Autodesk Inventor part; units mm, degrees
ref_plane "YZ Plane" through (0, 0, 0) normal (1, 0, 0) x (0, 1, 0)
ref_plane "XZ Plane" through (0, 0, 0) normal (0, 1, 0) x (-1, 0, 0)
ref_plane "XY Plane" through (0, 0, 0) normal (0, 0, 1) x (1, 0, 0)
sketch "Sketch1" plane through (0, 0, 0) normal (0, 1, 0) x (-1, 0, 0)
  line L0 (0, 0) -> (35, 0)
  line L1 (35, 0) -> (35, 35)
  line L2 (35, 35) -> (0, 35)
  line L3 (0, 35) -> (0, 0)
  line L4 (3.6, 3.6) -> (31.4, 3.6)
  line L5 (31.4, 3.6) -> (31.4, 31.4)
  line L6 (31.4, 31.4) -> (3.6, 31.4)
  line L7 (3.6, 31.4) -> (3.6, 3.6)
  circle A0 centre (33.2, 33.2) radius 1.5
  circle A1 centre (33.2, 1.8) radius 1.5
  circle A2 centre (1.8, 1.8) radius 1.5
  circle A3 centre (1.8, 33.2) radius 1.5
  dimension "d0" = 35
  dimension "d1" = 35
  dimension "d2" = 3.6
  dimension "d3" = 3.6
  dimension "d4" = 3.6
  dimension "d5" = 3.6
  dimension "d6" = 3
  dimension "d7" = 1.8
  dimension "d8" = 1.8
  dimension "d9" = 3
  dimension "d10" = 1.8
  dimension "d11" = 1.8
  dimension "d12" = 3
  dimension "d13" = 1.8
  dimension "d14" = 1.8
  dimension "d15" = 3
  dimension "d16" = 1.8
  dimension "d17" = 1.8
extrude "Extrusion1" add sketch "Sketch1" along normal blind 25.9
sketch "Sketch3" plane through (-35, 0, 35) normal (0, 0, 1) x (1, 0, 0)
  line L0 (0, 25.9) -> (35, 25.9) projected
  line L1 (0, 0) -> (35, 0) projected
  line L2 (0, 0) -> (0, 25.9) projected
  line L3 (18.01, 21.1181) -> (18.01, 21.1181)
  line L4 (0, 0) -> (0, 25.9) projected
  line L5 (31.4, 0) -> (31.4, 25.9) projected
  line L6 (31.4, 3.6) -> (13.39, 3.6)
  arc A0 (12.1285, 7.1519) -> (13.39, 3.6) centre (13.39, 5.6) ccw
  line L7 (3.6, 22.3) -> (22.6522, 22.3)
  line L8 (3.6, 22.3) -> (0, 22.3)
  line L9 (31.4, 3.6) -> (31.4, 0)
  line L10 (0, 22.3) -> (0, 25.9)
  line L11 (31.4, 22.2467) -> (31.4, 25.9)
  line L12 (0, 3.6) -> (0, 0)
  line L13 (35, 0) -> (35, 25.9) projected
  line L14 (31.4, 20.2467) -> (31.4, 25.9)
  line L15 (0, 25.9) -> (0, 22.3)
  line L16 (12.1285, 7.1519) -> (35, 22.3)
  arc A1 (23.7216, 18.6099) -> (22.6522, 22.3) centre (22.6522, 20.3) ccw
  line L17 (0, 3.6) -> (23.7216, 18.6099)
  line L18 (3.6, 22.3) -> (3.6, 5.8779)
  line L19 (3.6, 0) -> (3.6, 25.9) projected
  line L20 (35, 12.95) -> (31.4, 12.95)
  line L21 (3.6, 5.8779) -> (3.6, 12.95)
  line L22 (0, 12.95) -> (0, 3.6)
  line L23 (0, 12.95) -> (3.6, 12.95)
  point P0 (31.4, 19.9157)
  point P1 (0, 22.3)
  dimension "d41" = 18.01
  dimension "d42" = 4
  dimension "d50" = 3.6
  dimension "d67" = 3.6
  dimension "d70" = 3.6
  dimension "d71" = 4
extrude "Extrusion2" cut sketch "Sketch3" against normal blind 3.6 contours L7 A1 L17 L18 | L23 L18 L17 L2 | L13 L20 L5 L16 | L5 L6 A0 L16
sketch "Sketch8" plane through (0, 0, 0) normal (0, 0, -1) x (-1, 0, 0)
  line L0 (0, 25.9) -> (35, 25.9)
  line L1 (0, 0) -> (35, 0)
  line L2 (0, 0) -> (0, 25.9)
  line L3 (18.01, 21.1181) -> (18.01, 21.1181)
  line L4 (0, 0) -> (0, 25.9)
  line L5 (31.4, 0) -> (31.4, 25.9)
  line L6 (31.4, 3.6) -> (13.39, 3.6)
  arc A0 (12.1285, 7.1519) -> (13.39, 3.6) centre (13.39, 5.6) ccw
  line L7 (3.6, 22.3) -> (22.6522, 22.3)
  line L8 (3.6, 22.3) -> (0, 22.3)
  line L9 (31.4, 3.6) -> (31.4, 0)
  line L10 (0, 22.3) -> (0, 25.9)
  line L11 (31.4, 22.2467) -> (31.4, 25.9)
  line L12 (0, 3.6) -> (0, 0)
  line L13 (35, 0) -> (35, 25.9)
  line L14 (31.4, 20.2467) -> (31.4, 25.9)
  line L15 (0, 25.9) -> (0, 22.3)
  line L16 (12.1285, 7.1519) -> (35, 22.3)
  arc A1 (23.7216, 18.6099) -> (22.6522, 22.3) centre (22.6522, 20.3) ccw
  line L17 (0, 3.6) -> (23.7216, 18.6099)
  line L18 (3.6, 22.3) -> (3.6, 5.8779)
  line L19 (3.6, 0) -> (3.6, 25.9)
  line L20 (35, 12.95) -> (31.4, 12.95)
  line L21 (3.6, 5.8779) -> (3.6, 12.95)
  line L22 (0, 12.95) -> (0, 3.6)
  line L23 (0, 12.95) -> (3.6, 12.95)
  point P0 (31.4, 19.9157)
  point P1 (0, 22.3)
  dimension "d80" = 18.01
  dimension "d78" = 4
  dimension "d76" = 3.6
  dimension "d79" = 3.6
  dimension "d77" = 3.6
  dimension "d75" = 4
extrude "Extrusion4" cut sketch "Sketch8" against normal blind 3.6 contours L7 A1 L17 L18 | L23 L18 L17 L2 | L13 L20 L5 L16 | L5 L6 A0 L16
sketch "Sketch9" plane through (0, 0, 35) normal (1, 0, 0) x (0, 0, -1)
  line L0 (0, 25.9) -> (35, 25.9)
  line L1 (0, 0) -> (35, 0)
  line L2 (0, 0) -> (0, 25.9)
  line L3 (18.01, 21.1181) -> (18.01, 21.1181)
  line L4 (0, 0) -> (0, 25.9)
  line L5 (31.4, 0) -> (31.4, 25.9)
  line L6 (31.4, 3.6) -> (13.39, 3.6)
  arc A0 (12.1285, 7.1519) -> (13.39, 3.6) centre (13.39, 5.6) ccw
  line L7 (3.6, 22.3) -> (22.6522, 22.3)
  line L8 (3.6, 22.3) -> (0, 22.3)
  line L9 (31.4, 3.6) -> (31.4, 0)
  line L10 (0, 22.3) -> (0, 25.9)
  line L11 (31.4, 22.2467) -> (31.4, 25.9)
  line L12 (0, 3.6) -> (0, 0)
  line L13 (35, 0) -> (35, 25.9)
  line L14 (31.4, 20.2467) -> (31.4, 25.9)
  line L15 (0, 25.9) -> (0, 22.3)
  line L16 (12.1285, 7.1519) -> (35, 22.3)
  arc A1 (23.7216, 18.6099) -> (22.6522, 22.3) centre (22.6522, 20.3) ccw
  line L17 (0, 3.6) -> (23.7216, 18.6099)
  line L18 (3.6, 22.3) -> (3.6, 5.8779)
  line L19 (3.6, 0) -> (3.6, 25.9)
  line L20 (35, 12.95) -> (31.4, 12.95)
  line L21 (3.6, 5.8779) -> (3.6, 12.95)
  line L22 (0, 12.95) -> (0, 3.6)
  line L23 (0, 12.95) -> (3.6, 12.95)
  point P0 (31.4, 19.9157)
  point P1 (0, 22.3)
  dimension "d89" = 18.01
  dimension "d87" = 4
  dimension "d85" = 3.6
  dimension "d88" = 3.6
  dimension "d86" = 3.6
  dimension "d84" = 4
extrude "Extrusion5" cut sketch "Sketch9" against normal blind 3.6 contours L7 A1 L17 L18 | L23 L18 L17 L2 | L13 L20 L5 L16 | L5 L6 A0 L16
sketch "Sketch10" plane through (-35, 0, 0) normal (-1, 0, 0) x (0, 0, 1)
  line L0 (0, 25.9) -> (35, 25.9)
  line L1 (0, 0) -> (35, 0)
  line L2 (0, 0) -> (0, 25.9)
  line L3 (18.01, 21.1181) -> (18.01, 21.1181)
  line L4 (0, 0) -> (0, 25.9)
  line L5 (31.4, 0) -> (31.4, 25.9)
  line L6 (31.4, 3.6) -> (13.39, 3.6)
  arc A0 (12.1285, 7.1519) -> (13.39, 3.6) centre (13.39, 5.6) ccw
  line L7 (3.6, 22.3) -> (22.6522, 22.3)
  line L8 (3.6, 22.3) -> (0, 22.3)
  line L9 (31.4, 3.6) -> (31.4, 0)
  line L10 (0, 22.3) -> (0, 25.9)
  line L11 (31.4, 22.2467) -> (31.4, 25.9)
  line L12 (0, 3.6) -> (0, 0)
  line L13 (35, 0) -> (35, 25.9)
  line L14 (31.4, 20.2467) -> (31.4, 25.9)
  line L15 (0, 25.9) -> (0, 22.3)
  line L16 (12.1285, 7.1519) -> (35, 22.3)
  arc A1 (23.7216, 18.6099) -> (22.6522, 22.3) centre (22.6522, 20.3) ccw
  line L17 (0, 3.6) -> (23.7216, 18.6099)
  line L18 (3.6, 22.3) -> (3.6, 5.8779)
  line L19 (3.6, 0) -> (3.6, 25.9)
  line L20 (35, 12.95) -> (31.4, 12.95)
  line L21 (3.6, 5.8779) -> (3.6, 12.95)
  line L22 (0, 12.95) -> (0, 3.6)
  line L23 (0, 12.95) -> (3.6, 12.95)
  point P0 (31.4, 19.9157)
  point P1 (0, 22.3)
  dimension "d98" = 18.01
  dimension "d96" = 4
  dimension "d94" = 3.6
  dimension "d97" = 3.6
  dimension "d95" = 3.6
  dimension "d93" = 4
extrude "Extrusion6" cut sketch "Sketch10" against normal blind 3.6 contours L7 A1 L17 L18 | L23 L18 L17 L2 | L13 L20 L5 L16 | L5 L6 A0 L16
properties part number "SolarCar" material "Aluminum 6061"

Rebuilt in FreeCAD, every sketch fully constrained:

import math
import FreeCAD as App
import Part
import Sketcher

V = App.Vector
Q = App.Units.Quantity


def add_polygon(sketch, points):
    """Adds a closed chain of lines whose ends are joined by coincident constraints."""
    first, n = sketch.GeometryCount, len(points)
    for a, b in zip(points, points[1:] + points[:1]):
        sketch.addGeometry(Part.LineSegment(App.Vector(*a, 0), App.Vector(*b, 0)), False)
    for i in range(n):
        sketch.addConstraint(Sketcher.Constraint("Coincident", first + i, 2, first + (i + 1) % n, 1))

doc = App.newDocument("Part")
body = doc.addObject("PartDesign::Body", "Body")

# Sketch on XZ plane
sketch1 = body.newObject("Sketcher::SketchObject", "Sketch")
sketch1.AttachmentSupport = (doc.getObject("XZ_Plane"), [""])
sketch1.MapMode = "FlatFace"
add_polygon(sketch1, [(0, 35), (0, 0), (-35, 0), (-35, 35)])  # lines 0-3
sketch1.addGeometry(Part.Circle(V(-1.8, 1.8, 0), V(0, 0, 1), 1.5), False)  # 4
sketch1.addGeometry(Part.Circle(V(-33.2, 1.8, 0), V(0, 0, 1), 1.5), False)  # 5
sketch1.addGeometry(Part.Circle(V(-1.8, 33.2, 0), V(0, 0, 1), 1.5), False)  # 6
add_polygon(sketch1, [(-31.4, 3.6), (-3.6, 3.6), (-3.6, 31.4), (-31.4, 31.4)])  # lines 7-10
sketch1.addGeometry(Part.Circle(V(-33.2, 33.2, 0), V(0, 0, 1), 1.5), False)  # 11
sketch1.addConstraint([
    Sketcher.Constraint("Vertical", 0),
    Sketcher.Constraint("Horizontal", 1),
    Sketcher.Constraint("Vertical", 2),
    Sketcher.Constraint("Horizontal", 3),
    Sketcher.Constraint("Horizontal", 7),
    Sketcher.Constraint("Vertical", 8),
    Sketcher.Constraint("Horizontal", 9),
    Sketcher.Constraint("Vertical", 10),
    Sketcher.Constraint("Coincident", 0, 2, -1, 1),
    Sketcher.Constraint("Equal", 4, 5),
    Sketcher.Constraint("Equal", 5, 6),
    Sketcher.Constraint("Equal", 6, 11),
    Sketcher.Constraint("Horizontal", 4, 3, 5, 3),
    Sketcher.Constraint("Horizontal", 6, 3, 11, 3),
    Sketcher.Constraint("Vertical", 4, 3, 6, 3),
    Sketcher.Constraint("Vertical", 5, 3, 11, 3),
    Sketcher.Constraint("Equal", 3, 0),
    Sketcher.Constraint("Equal", 9, 8),
    Sketcher.Constraint("Diameter", 4, Q("3 mm")),
    Sketcher.Constraint("DistanceX", 1, 2, 1, 1, Q("35 mm")),
    Sketcher.Constraint("DistanceX", 4, 3, -1, 1, Q("1.8 mm")),
    Sketcher.Constraint("DistanceY", -1, 1, 4, 3, Q("1.8 mm")),
    Sketcher.Constraint("DistanceX", 7, 2, -1, 1, Q("3.6 mm")),
    Sketcher.Constraint("DistanceY", -1, 1, 7, 2, Q("3.6 mm")),
    Sketcher.Constraint("DistanceX", 1, 2, 5, 3, Q("1.8 mm")),
    Sketcher.Constraint("DistanceY", 11, 3, 2, 2, Q("1.8 mm")),
    Sketcher.Constraint("DistanceY", 8, 2, 6, 3, Q("1.8 mm")),
])
pad1 = body.newObject("PartDesign::Pad", "Pad")
pad1.Profile = sketch1
pad1.Length = 25.9
pad1.Reversed = True

# Sketch on XY plane
sketch2 = body.newObject("Sketcher::SketchObject", "Sketch001")
sketch2.AttachmentSupport = (doc.getObject("XY_Plane"), [""])
sketch2.MapMode = "FlatFace"
sketch2.AttachmentOffset = App.Placement(V(0, 0, 35), App.Rotation())
sketch2.addGeometry([
    Part.LineSegment(V(-12.3478, 22.3, 0), V(-31.4, 22.3, 0)),  # 0
    Part.LineSegment(V(-31.4, 22.3, 0), V(-31.4, 12.95, 0)),  # 1
    Part.LineSegment(V(-31.4, 12.95, 0), V(-35, 12.95, 0)),  # 2
    Part.LineSegment(V(-35, 12.95, 0), V(-35, 3.6, 0)),  # 3
    Part.LineSegment(V(-35, 3.6, 0), V(-11.2784, 18.6099, 0)),  # 4
    Part.ArcOfCircle(Part.Circle(V(-12.3478, 20.3, 0), V(0, 0, 1), 2.000014), math.radians(-57.676678), math.radians(90)),  # 5
    Part.LineSegment(V(0, 12.95, 0), V(0, 22.3, 0)),  # 6
    Part.LineSegment(V(0, 22.3, 0), V(-22.8715, 7.1519, 0)),  # 7
    Part.ArcOfCircle(Part.Circle(V(-21.61, 5.6, 0), V(0, 0, 1), 1.999944), math.radians(129.106783), math.radians(270)),  # 8
    Part.LineSegment(V(-21.61, 3.6, 0), V(-3.6, 3.6, 0)),  # 9
    Part.LineSegment(V(-3.6, 3.6, 0), V(-3.6, 12.95, 0)),  # 10
    Part.LineSegment(V(-3.6, 12.95, 0), V(0, 12.95, 0)),  # 11
], False)
sketch2.addConstraint([
    Sketcher.Constraint("Coincident", 0, 2, 1, 1),
    Sketcher.Constraint("Coincident", 1, 2, 2, 1),
    Sketcher.Constraint("Coincident", 2, 2, 3, 1),
    Sketcher.Constraint("Coincident", 3, 2, 4, 1),
    Sketcher.Constraint("Coincident", 4, 2, 5, 1),
    Sketcher.Constraint("Coincident", 5, 2, 0, 1),
    Sketcher.Constraint("Coincident", 6, 2, 7, 1),
    Sketcher.Constraint("Coincident", 7, 2, 8, 1),
    Sketcher.Constraint("Coincident", 8, 2, 9, 1),
    Sketcher.Constraint("Coincident", 9, 2, 10, 1),
    Sketcher.Constraint("Coincident", 10, 2, 11, 1),
    Sketcher.Constraint("Coincident", 11, 2, 6, 1),
    Sketcher.Constraint("Horizontal", 0),
    Sketcher.Constraint("Vertical", 1),
    Sketcher.Constraint("Horizontal", 2),
    Sketcher.Constraint("Vertical", 3),
    Sketcher.Constraint("Vertical", 6),
    Sketcher.Constraint("Horizontal", 9),
    Sketcher.Constraint("Vertical", 10),
    Sketcher.Constraint("Horizontal", 11),
    Sketcher.Constraint("PointOnObject", 6, 2, -2),
    Sketcher.Constraint("Radius", 5, Q("2 mm")),
    Sketcher.Constraint("Radius", 8, Q("2 mm")),
    Sketcher.Constraint("DistanceX", 2, 2, 2, 1, Q("3.6 mm")),
    Sketcher.Constraint("DistanceX", 11, 1, 11, 2, Q("3.6 mm")),
    Sketcher.Constraint("DistanceX", 9, 1, 9, 2, Q("18.01 mm")),
    Sketcher.Constraint("DistanceY", -1, 1, 3, 2, Q("3.6 mm")),
    Sketcher.Constraint("DistanceY", -1, 1, 8, 2, Q("3.6 mm")),
    Sketcher.Constraint("DistanceX", 8, 3, 9, 2, Q("18.01 mm")),
    Sketcher.Constraint("DistanceX", 2, 2, -1, 1, Q("35 mm")),
    Sketcher.Constraint("DistanceY", 5, 3, 6, 2, Q("2 mm")),
    Sketcher.Constraint("DistanceY", 1, 2, 1, 1, Q("9.35 mm")),
    Sketcher.Constraint("DistanceY", 3, 2, 3, 1, Q("9.35 mm")),
    Sketcher.Constraint("DistanceY", 6, 1, 6, 2, Q("9.35 mm")),
    Sketcher.Constraint("DistanceY", -1, 1, 4, 2, Q("18.61 mm")),
    Sketcher.Constraint("Distance", 7, Q("27.433 mm")),
    Sketcher.Constraint("DistanceX", 0, 2, 0, 1, Q("19.0522 mm")),
    Sketcher.Constraint("DistanceX", 7, 2, 4, 2, Q("11.593 mm")),
])
pocket1 = body.newObject("PartDesign::Pocket", "Pocket")
pocket1.Profile = sketch2
pocket1.Length = 3.6

# Sketch on XY plane
sketch3 = body.newObject("Sketcher::SketchObject", "Sketch002")
sketch3.AttachmentSupport = (doc.getObject("XY_Plane"), [""])
sketch3.MapMode = "FlatFace"
sketch3.addGeometry([
    Part.LineSegment(V(-22.6522, 22.3, 0), V(-3.6, 22.3, 0)),  # 0
    Part.LineSegment(V(-3.6, 22.3, 0), V(-3.6, 12.95, 0)),  # 1
    Part.LineSegment(V(-3.6, 12.95, 0), V(0, 12.95, 0)),  # 2
    Part.LineSegment(V(0, 12.95, 0), V(0, 3.6, 0)),  # 3
    Part.LineSegment(V(0, 3.6, 0), V(-23.7216, 18.6099, 0)),  # 4
    Part.ArcOfCircle(Part.Circle(V(-22.6522, 20.3, 0), V(0, 0, 1), 2.000014), math.radians(90), math.radians(237.676678)),  # 5
    Part.LineSegment(V(-35, 12.95, 0), V(-35, 22.3, 0)),  # 6
    Part.LineSegment(V(-35, 22.3, 0), V(-12.1285, 7.1519, 0)),  # 7
    Part.ArcOfCircle(Part.Circle(V(-13.39, 5.6, 0), V(0, 0, 1), 1.999944), math.radians(-90), math.radians(50.893217)),  # 8
    Part.LineSegment(V(-13.39, 3.6, 0), V(-31.4, 3.6, 0)),  # 9
    Part.LineSegment(V(-31.4, 3.6, 0), V(-31.4, 12.95, 0)),  # 10
    Part.LineSegment(V(-31.4, 12.95, 0), V(-35, 12.95, 0)),  # 11
], False)
sketch3.addConstraint([
    Sketcher.Constraint("Coincident", 0, 2, 1, 1),
    Sketcher.Constraint("Coincident", 1, 2, 2, 1),
    Sketcher.Constraint("Coincident", 2, 2, 3, 1),
    Sketcher.Constraint("Coincident", 3, 2, 4, 1),
    Sketcher.Constraint("Coincident", 4, 2, 5, 2),
    Sketcher.Constraint("Coincident", 5, 1, 0, 1),
    Sketcher.Constraint("Coincident", 6, 2, 7, 1),
    Sketcher.Constraint("Coincident", 7, 2, 8, 2),
    Sketcher.Constraint("Coincident", 8, 1, 9, 1),
    Sketcher.Constraint("Coincident", 9, 2, 10, 1),
    Sketcher.Constraint("Coincident", 10, 2, 11, 1),
    Sketcher.Constraint("Coincident", 11, 2, 6, 1),
    Sketcher.Constraint("Horizontal", 0),
    Sketcher.Constraint("Vertical", 1),
    Sketcher.Constraint("Horizontal", 2),
    Sketcher.Constraint("Vertical", 3),
    Sketcher.Constraint("Vertical", 6),
    Sketcher.Constraint("Horizontal", 9),
    Sketcher.Constraint("Vertical", 10),
    Sketcher.Constraint("Horizontal", 11),
    Sketcher.Constraint("PointOnObject", 2, 2, -2),
    Sketcher.Constraint("Radius", 5, Q("2 mm")),
    Sketcher.Constraint("Radius", 8, Q("2 mm")),
    Sketcher.Constraint("DistanceX", 2, 1, 2, 2, Q("3.6 mm")),
    Sketcher.Constraint("DistanceX", 11, 2, 11, 1, Q("3.6 mm")),
    Sketcher.Constraint("DistanceX", 9, 2, 9, 1, Q("18.01 mm")),
    Sketcher.Constraint("DistanceY", -1, 1, 3, 2, Q("3.6 mm")),
    Sketcher.Constraint("DistanceY", -1, 1, 8, 1, Q("3.6 mm")),
    Sketcher.Constraint("DistanceX", 9, 2, 8, 3, Q("18.01 mm")),
    Sketcher.Constraint("DistanceX", 6, 2, -1, 1, Q("35 mm")),
    Sketcher.Constraint("DistanceY", 5, 3, 6, 2, Q("2 mm")),
    Sketcher.Constraint("DistanceY", 1, 2, 1, 1, Q("9.35 mm")),
    Sketcher.Constraint("DistanceY", 3, 2, 3, 1, Q("9.35 mm")),
    Sketcher.Constraint("DistanceY", 6, 1, 6, 2, Q("9.35 mm")),
    Sketcher.Constraint("DistanceY", -1, 1, 4, 2, Q("18.61 mm")),
    Sketcher.Constraint("Distance", 7, Q("27.433 mm")),
    Sketcher.Constraint("DistanceX", 0, 1, 0, 2, Q("19.0522 mm")),
    Sketcher.Constraint("DistanceX", 4, 2, 7, 2, Q("11.593 mm")),
])
pocket2 = body.newObject("PartDesign::Pocket", "Pocket001")
pocket2.Profile = sketch3
pocket2.Length = 3.6
pocket2.Reversed = True

# Sketch on YZ plane
sketch4 = body.newObject("Sketcher::SketchObject", "Sketch003")
sketch4.AttachmentSupport = (doc.getObject("YZ_Plane"), [""])
sketch4.MapMode = "FlatFace"
sketch4.addGeometry([
    Part.LineSegment(V(22.3, 12.3478, 0), V(22.3, 31.4, 0)),  # 0
    Part.LineSegment(V(22.3, 31.4, 0), V(12.95, 31.4, 0)),  # 1
    Part.LineSegment(V(12.95, 31.4, 0), V(12.95, 35, 0)),  # 2
    Part.LineSegment(V(12.95, 35, 0), V(3.6, 35, 0)),  # 3
    Part.LineSegment(V(3.6, 35, 0), V(18.6099, 11.2784, 0)),  # 4
    Part.ArcOfCircle(Part.Circle(V(20.3, 12.3478, 0), V(0, 0, 1), 2.000014), math.radians(-147.676678), math.radians(0)),  # 5
    Part.LineSegment(V(12.95, 0, 0), V(22.3, 0, 0)),  # 6
    Part.LineSegment(V(22.3, 0, 0), V(7.1519, 22.8715, 0)),  # 7
    Part.ArcOfCircle(Part.Circle(V(5.6, 21.61, 0), V(0, 0, 1), 1.999944), math.radians(39.106783), math.radians(180)),  # 8
    Part.LineSegment(V(3.6, 21.61, 0), V(3.6, 3.6, 0)),  # 9
    Part.LineSegment(V(3.6, 3.6, 0), V(12.95, 3.6, 0)),  # 10
    Part.LineSegment(V(12.95, 3.6, 0), V(12.95, 0, 0)),  # 11
], False)
sketch4.addConstraint([
    Sketcher.Constraint("Coincident", 0, 2, 1, 1),
    Sketcher.Constraint("Coincident", 1, 2, 2, 1),
    Sketcher.Constraint("Coincident", 2, 2, 3, 1),
    Sketcher.Constraint("Coincident", 3, 2, 4, 1),
    Sketcher.Constraint("Coincident", 4, 2, 5, 1),
    Sketcher.Constraint("Coincident", 5, 2, 0, 1),
    Sketcher.Constraint("Coincident", 6, 2, 7, 1),
    Sketcher.Constraint("Coincident", 7, 2, 8, 1),
    Sketcher.Constraint("Coincident", 8, 2, 9, 1),
    Sketcher.Constraint("Coincident", 9, 2, 10, 1),
    Sketcher.Constraint("Coincident", 10, 2, 11, 1),
    Sketcher.Constraint("Coincident", 11, 2, 6, 1),
    Sketcher.Constraint("Vertical", 0),
    Sketcher.Constraint("Horizontal", 1),
    Sketcher.Constraint("Vertical", 2),
    Sketcher.Constraint("Horizontal", 3),
    Sketcher.Constraint("Horizontal", 6),
    Sketcher.Constraint("Vertical", 9),
    Sketcher.Constraint("Horizontal", 10),
    Sketcher.Constraint("Vertical", 11),
    Sketcher.Constraint("PointOnObject", 6, 2, -1),
    Sketcher.Constraint("Radius", 5, Q("2 mm")),
    Sketcher.Constraint("Radius", 8, Q("2 mm")),
    Sketcher.Constraint("DistanceY", 2, 1, 2, 2, Q("3.6 mm")),
    Sketcher.Constraint("DistanceY", 11, 2, 11, 1, Q("3.6 mm")),
    Sketcher.Constraint("DistanceY", 9, 2, 9, 1, Q("18.01 mm")),
    Sketcher.Constraint("DistanceX", -1, 1, 3, 2, Q("3.6 mm")),
    Sketcher.Constraint("DistanceX", -1, 1, 8, 2, Q("3.6 mm")),
    Sketcher.Constraint("DistanceY", 9, 2, 8, 3, Q("18.01 mm")),
    Sketcher.Constraint("DistanceY", -1, 1, 2, 2, Q("35 mm")),
    Sketcher.Constraint("DistanceX", 5, 3, 6, 2, Q("2 mm")),
    Sketcher.Constraint("DistanceX", 1, 2, 1, 1, Q("9.35 mm")),
    Sketcher.Constraint("DistanceX", 3, 2, 3, 1, Q("9.35 mm")),
    Sketcher.Constraint("DistanceX", 6, 1, 6, 2, Q("9.35 mm")),
    Sketcher.Constraint("DistanceX", -1, 1, 4, 2, Q("18.61 mm")),
    Sketcher.Constraint("Distance", 7, Q("27.433 mm")),
    Sketcher.Constraint("DistanceY", 0, 1, 0, 2, Q("19.0522 mm")),
    Sketcher.Constraint("DistanceY", 4, 2, 7, 2, Q("11.593 mm")),
])
pocket3 = body.newObject("PartDesign::Pocket", "Pocket002")
pocket3.Profile = sketch4
pocket3.Length = 3.6

# Sketch on YZ plane
sketch5 = body.newObject("Sketcher::SketchObject", "Sketch004")
sketch5.AttachmentSupport = (doc.getObject("YZ_Plane"), [""])
sketch5.MapMode = "FlatFace"
sketch5.AttachmentOffset = App.Placement(V(0, 0, -35), App.Rotation())
sketch5.addGeometry([
    Part.LineSegment(V(22.3, 22.6522, 0), V(22.3, 3.6, 0)),  # 0
    Part.LineSegment(V(22.3, 3.6, 0), V(12.95, 3.6, 0)),  # 1
    Part.LineSegment(V(12.95, 3.6, 0), V(12.95, 0, 0)),  # 2
    Part.LineSegment(V(12.95, 0, 0), V(3.6, 0, 0)),  # 3
    Part.LineSegment(V(3.6, 0, 0), V(18.6099, 23.7216, 0)),  # 4
    Part.ArcOfCircle(Part.Circle(V(20.3, 22.6522, 0), V(0, 0, 1), 2.000014), math.radians(0), math.radians(147.676678)),  # 5
    Part.LineSegment(V(12.95, 35, 0), V(22.3, 35, 0)),  # 6
    Part.LineSegment(V(22.3, 35, 0), V(7.1519, 12.1285, 0)),  # 7
    Part.ArcOfCircle(Part.Circle(V(5.6, 13.39, 0), V(0, 0, 1), 1.999944), math.radians(180), math.radians(320.893217)),  # 8
    Part.LineSegment(V(3.6, 13.39, 0), V(3.6, 31.4, 0)),  # 9
    Part.LineSegment(V(3.6, 31.4, 0), V(12.95, 31.4, 0)),  # 10
    Part.LineSegment(V(12.95, 31.4, 0), V(12.95, 35, 0)),  # 11
], False)
sketch5.addConstraint([
    Sketcher.Constraint("Coincident", 0, 2, 1, 1),
    Sketcher.Constraint("Coincident", 1, 2, 2, 1),
    Sketcher.Constraint("Coincident", 2, 2, 3, 1),
    Sketcher.Constraint("Coincident", 3, 2, 4, 1),
    Sketcher.Constraint("Coincident", 4, 2, 5, 2),
    Sketcher.Constraint("Coincident", 5, 1, 0, 1),
    Sketcher.Constraint("Coincident", 6, 2, 7, 1),
    Sketcher.Constraint("Coincident", 7, 2, 8, 2),
    Sketcher.Constraint("Coincident", 8, 1, 9, 1),
    Sketcher.Constraint("Coincident", 9, 2, 10, 1),
    Sketcher.Constraint("Coincident", 10, 2, 11, 1),
    Sketcher.Constraint("Coincident", 11, 2, 6, 1),
    Sketcher.Constraint("Vertical", 0),
    Sketcher.Constraint("Horizontal", 1),
    Sketcher.Constraint("Vertical", 2),
    Sketcher.Constraint("Horizontal", 3),
    Sketcher.Constraint("Horizontal", 6),
    Sketcher.Constraint("Vertical", 9),
    Sketcher.Constraint("Horizontal", 10),
    Sketcher.Constraint("Vertical", 11),
    Sketcher.Constraint("PointOnObject", 2, 2, -1),
    Sketcher.Constraint("Radius", 5, Q("2 mm")),
    Sketcher.Constraint("Radius", 8, Q("2 mm")),
    Sketcher.Constraint("DistanceY", 2, 2, 2, 1, Q("3.6 mm")),
    Sketcher.Constraint("DistanceY", 11, 1, 11, 2, Q("3.6 mm")),
    Sketcher.Constraint("DistanceY", 9, 1, 9, 2, Q("18.01 mm")),
    Sketcher.Constraint("DistanceX", -1, 1, 3, 2, Q("3.6 mm")),
    Sketcher.Constraint("DistanceX", -1, 1, 8, 1, Q("3.6 mm")),
    Sketcher.Constraint("DistanceY", 8, 3, 9, 2, Q("18.01 mm")),
    Sketcher.Constraint("DistanceY", -1, 1, 6, 2, Q("35 mm")),
    Sketcher.Constraint("DistanceX", 5, 3, 6, 2, Q("2 mm")),
    Sketcher.Constraint("DistanceX", 1, 2, 1, 1, Q("9.35 mm")),
    Sketcher.Constraint("DistanceX", 3, 2, 3, 1, Q("9.35 mm")),
    Sketcher.Constraint("DistanceX", 6, 1, 6, 2, Q("9.35 mm")),
    Sketcher.Constraint("DistanceX", -1, 1, 4, 2, Q("18.61 mm")),
    Sketcher.Constraint("Distance", 7, Q("27.433 mm")),
    Sketcher.Constraint("DistanceY", 0, 2, 0, 1, Q("19.0522 mm")),
    Sketcher.Constraint("DistanceY", 7, 2, 4, 2, Q("11.593 mm")),
])
pocket4 = body.newObject("PartDesign::Pocket", "Pocket003")
pocket4.Profile = sketch5
pocket4.Length = 3.6
pocket4.Reversed = True

doc.recompute()
